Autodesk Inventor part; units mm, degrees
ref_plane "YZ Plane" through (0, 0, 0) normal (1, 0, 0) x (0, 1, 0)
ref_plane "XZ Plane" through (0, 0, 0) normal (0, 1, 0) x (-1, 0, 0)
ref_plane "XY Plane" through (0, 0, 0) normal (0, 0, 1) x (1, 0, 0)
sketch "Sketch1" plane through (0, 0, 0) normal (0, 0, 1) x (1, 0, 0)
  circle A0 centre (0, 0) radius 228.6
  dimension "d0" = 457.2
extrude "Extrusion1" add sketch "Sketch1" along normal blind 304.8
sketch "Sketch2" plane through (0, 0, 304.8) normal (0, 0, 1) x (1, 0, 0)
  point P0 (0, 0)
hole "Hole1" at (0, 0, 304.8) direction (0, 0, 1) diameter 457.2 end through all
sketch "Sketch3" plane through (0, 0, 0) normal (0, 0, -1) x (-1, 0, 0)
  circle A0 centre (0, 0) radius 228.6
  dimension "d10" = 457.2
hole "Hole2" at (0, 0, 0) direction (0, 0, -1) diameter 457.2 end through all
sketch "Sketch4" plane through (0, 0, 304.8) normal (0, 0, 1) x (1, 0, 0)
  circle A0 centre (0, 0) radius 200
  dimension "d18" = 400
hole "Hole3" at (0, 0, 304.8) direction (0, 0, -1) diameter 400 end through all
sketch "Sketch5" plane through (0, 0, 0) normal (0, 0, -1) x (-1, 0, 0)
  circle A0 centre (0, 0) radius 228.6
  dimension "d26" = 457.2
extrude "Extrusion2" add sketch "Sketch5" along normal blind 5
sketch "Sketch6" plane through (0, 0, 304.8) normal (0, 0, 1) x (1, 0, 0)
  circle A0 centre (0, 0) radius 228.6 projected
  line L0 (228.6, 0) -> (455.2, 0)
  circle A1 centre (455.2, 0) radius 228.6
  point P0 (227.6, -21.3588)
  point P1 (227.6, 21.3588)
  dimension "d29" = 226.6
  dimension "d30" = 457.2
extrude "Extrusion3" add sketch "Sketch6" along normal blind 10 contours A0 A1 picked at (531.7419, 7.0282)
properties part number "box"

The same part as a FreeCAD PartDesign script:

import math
import FreeCAD as App
import Part
import Sketcher
from FreeCAD import Vector

doc = App.newDocument("Part")
params = doc.addObject("Spreadsheet::Sheet", "Params")
for row, (alias, value) in enumerate([
    ("sketch1_diameter", "457.2 mm"),
    ("pad1_length", "304.8 mm"),
    ("sketch2_diameter", "457.2 mm"),
    ("hole_diameter", "457.2 mm"),
    ("sketch3_diameter", "457.2 mm"),
    ("hole2_diameter", "457.2 mm"),
    ("sketch4_diameter", "400 mm"),
    ("hole3_diameter", "400 mm"),
    ("sketch5_diameter", "457.2 mm"),
    ("pad2_length", "5 mm"),
    ("sketch6_radius", "228.6 mm"),
    ("pad3_length", "10 mm"),
], start=1):
    params.set(f"A{row}", alias)
    params.set(f"B{row}", "=" + value)
    params.setAlias(f"B{row}", alias)

body = doc.addObject("PartDesign::Body", "Body")
body.AllowCompound = True

# Sketch on XY plane
sketch1 = body.newObject("Sketcher::SketchObject", "Sketch")
sketch1.AttachmentSupport = (doc.getObject("XY_Plane"), [""])
sketch1.MapMode = "FlatFace"
sketch1.addGeometry(Part.Circle(Vector(0, 0, 0), Vector(0, 0, 1), 229), False)
sketch1.addConstraint(Sketcher.Constraint("Coincident", 0, 3, -1, 1))
sketch1.addConstraint(Sketcher.Constraint("Diameter", 0, 457.2))
sketch1.setExpression("Constraints[1]", "Params.sketch1_diameter")
pad1 = body.newObject("PartDesign::Pad", "Pad")
pad1.Profile = sketch1
pad1.setExpression("Length", "Params.pad1_length")

# Sketch on XY plane
sketch2 = body.newObject("Sketcher::SketchObject", "Sketch001")
sketch2.AttachmentSupport = (doc.getObject("XY_Plane"), [""])
sketch2.MapMode = "FlatFace"
sketch2.AttachmentOffset = App.Placement(Vector(0, 0, 304.8), App.Rotation())
sketch2.addGeometry(Part.Circle(Vector(0, 0, 0), Vector(0, 0, 1), 229), False)
sketch2.addConstraint(Sketcher.Constraint("Coincident", 0, 3, -1, 1))
sketch2.addConstraint(Sketcher.Constraint("Diameter", 0, 457.2))
sketch2.setExpression("Constraints[1]", "Params.sketch2_diameter")
doc.recompute()
hole = body.newObject("PartDesign::Hole", "Hole")
hole.Profile = sketch2
hole.ThreadType = "None"
hole.setExpression("Diameter", "Params.hole_diameter")
hole.DepthType = "ThroughAll"
hole.Reversed = True

# Sketch on XY plane
sketch3 = body.newObject("Sketcher::SketchObject", "Sketch002")
sketch3.AttachmentSupport = (doc.getObject("XY_Plane"), [""])
sketch3.MapMode = "FlatFace"
sketch3.addGeometry(Part.Circle(Vector(0, 0, 0), Vector(0, 0, 1), 229), False)
sketch3.addConstraint(Sketcher.Constraint("Coincident", 0, 3, -1, 1))
sketch3.addConstraint(Sketcher.Constraint("Diameter", 0, 457.2))
sketch3.setExpression("Constraints[1]", "Params.sketch3_diameter")
doc.recompute()
hole2 = body.newObject("PartDesign::Hole", "Hole001")
hole2.Profile = sketch3
hole2.ThreadType = "None"
hole2.setExpression("Diameter", "Params.hole2_diameter")
hole2.DepthType = "ThroughAll"

# Sketch on XY plane
sketch4 = body.newObject("Sketcher::SketchObject", "Sketch003")
sketch4.AttachmentSupport = (doc.getObject("XY_Plane"), [""])
sketch4.MapMode = "FlatFace"
sketch4.AttachmentOffset = App.Placement(Vector(0, 0, 304.8), App.Rotation())
sketch4.addGeometry(Part.Circle(Vector(0, 0, 0), Vector(0, 0, 1), 200), False)
sketch4.addConstraint(Sketcher.Constraint("Coincident", 0, 3, -1, 1))
sketch4.addConstraint(Sketcher.Constraint("Diameter", 0, 400.0))
sketch4.setExpression("Constraints[1]", "Params.sketch4_diameter")
doc.recompute()
hole3 = body.newObject("PartDesign::Hole", "Hole002")
hole3.Profile = sketch4
hole3.ThreadType = "None"
hole3.setExpression("Diameter", "Params.hole3_diameter")
hole3.DepthType = "ThroughAll"

# Sketch on XY plane
sketch5 = body.newObject("Sketcher::SketchObject", "Sketch004")
sketch5.AttachmentSupport = (doc.getObject("XY_Plane"), [""])
sketch5.MapMode = "FlatFace"
sketch5.addGeometry(Part.Circle(Vector(0, 0, 0), Vector(0, 0, 1), 229), False)
sketch5.addConstraint(Sketcher.Constraint("Coincident", 0, 3, -1, 1))
sketch5.addConstraint(Sketcher.Constraint("Diameter", 0, 457.2))
sketch5.setExpression("Constraints[1]", "Params.sketch5_diameter")
pad2 = body.newObject("PartDesign::Pad", "Pad001")
pad2.Profile = sketch5
pad2.setExpression("Length", "Params.pad2_length")
pad2.Reversed = True

# Sketch on XY plane
sketch6 = body.newObject("Sketcher::SketchObject", "Sketch005")
sketch6.AttachmentSupport = (doc.getObject("XY_Plane"), [""])
sketch6.MapMode = "FlatFace"
sketch6.AttachmentOffset = App.Placement(Vector(0, 0, 304.8), App.Rotation())
sketch6.addGeometry(Part.ArcOfCircle(Part.Circle(Vector(0, 0, 0), Vector(0, 0, 1), 229), math.radians(-5.36), math.radians(5.36)), False)
sketch6.addGeometry(Part.ArcOfCircle(Part.Circle(Vector(455, 0, 0), Vector(0, 0, 1), 229), math.radians(-175), math.radians(175)), False)
sketch6.addConstraint(Sketcher.Constraint("Coincident", 0, 1, 1, 1))
sketch6.addConstraint(Sketcher.Constraint("Coincident", 1, 2, 0, 2))
sketch6.addConstraint(Sketcher.Constraint("Coincident", 0, 3, -1, 1))
sketch6.addConstraint(Sketcher.Constraint("Equal", 0, 1))
sketch6.addConstraint(Sketcher.Constraint("PointOnObject", 1, 3, -1))
sketch6.addConstraint(Sketcher.Constraint("Radius", 0, 228.6))
sketch6.addConstraint(Sketcher.Constraint("DistanceX", -1, 1, 1, 3, 455.2))
sketch6.setExpression("Constraints[5]", "Params.sketch6_radius")
pad3 = body.newObject("PartDesign::Pad", "Pad002")
pad3.Profile = sketch6
pad3.setExpression("Length", "Params.pad3_length")

doc.recompute()
